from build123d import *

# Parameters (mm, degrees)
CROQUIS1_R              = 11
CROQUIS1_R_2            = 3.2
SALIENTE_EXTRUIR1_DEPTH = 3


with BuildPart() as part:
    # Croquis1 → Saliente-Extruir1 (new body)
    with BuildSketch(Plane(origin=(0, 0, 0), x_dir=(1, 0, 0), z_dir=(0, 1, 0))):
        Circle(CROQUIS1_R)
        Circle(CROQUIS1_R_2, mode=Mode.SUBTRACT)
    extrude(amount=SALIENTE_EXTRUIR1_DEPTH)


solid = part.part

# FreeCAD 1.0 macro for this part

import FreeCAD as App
import Part
import Sketcher
from FreeCAD import Vector

doc = App.newDocument("Part")
params = doc.addObject("Spreadsheet::Sheet", "Params")
for row, (alias, value) in enumerate([
    ("sketch1_diameter", "22 mm"),
    ("sketch1_diameter2", "6.4 mm"),
    ("pad1_length", "3 mm"),
], start=1):
    params.set(f"A{row}", alias)
    params.set(f"B{row}", "=" + value)
    params.setAlias(f"B{row}", alias)

body = doc.addObject("PartDesign::Body", "Body")

sketch1 = body.newObject("Sketcher::SketchObject", "Sketch")
sketch1.AttachmentSupport = (doc.getObject("XZ_Plane"), [""])
sketch1.MapMode = "FlatFace"
sketch1.addGeometry([
    Part.Circle(Vector(0, 0, 0), Vector(0, 0, 1), 11),
    Part.Circle(Vector(0, 0, 0), Vector(0, 0, 1), 3.2),
], False)
sketch1.addConstraint([
    Sketcher.Constraint("Coincident", 0, 3, -1, 1),
    Sketcher.Constraint("Coincident", 1, 3, -1, 1),
    Sketcher.Constraint("Diameter", 0, 22.0),
    Sketcher.Constraint("Diameter", 1, 6.4),
])
sketch1.setExpression("Constraints[2]", "Params.sketch1_diameter")
sketch1.setExpression("Constraints[3]", "Params.sketch1_diameter2")
pad1 = body.newObject("PartDesign::Pad", "Pad")
pad1.Profile = sketch1
pad1.setExpression("Length", "Params.pad1_length")
pad1.Reversed = True

doc.recompute()
